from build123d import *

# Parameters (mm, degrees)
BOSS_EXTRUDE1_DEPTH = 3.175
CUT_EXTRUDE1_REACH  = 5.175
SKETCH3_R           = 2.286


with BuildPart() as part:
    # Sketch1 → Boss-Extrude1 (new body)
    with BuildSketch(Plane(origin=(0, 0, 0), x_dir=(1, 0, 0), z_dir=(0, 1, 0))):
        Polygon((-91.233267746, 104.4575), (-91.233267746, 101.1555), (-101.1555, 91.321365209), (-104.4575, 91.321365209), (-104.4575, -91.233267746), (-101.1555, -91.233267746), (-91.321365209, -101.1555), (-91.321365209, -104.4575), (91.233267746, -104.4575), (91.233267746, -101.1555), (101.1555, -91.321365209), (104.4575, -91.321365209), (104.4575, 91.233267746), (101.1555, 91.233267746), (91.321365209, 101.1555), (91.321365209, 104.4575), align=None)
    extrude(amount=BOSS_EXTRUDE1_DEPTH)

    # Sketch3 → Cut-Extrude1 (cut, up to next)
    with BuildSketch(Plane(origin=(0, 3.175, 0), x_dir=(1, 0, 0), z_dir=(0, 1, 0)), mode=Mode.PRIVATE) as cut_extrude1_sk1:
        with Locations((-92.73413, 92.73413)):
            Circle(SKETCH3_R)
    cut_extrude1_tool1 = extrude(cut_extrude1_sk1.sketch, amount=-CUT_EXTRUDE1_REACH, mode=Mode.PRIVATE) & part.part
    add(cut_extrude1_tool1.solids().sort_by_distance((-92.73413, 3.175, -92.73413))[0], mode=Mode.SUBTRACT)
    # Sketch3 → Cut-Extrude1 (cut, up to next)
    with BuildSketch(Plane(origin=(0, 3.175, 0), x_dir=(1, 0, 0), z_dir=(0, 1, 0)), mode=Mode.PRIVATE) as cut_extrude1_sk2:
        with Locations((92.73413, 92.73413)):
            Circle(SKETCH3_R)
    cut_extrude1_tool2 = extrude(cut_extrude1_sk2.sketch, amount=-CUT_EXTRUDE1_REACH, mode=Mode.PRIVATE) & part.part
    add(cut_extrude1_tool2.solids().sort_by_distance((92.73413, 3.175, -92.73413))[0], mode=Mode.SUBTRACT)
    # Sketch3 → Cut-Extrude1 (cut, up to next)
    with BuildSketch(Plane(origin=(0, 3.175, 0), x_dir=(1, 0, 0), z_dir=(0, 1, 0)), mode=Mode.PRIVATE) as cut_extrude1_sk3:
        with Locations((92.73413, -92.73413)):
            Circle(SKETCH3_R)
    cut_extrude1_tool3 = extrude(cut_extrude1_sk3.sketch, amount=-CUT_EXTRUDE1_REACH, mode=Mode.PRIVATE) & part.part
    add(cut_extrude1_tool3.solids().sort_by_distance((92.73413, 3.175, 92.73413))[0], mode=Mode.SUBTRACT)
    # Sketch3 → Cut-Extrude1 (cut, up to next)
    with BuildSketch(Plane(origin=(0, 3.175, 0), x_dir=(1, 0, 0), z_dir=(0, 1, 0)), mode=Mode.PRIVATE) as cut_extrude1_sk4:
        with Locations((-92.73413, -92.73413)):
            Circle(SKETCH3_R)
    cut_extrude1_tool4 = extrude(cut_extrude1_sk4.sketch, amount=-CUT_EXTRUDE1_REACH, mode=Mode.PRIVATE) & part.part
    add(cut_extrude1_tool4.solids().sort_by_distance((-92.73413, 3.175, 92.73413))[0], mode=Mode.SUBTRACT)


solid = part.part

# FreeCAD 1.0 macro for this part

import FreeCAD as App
import Part
import Sketcher
from FreeCAD import Vector
Q = App.Units.Quantity

doc = App.newDocument("Part")
body = doc.addObject("PartDesign::Body", "Body")

sketch1 = body.newObject("Sketcher::SketchObject", "Sketch")
sketch1.AttachmentSupport = (doc.getObject("XZ_Plane"), [""])
sketch1.MapMode = "FlatFace"
sketch1.addGeometry([
    Part.LineSegment(Vector(-91.233268, -104.4575, 0), Vector(-91.233268, -101.1555, 0)),
    Part.LineSegment(Vector(-91.233268, -101.1555, 0), Vector(-101.1555, -91.321365, 0)),
    Part.LineSegment(Vector(-101.1555, -91.321365, 0), Vector(-104.4575, -91.321365, 0)),
    Part.LineSegment(Vector(-104.4575, -91.321365, 0), Vector(-104.4575, 91.233268, 0)),
    Part.LineSegment(Vector(-104.4575, 91.233268, 0), Vector(-101.1555, 91.233268, 0)),
    Part.LineSegment(Vector(-101.1555, 91.233268, 0), Vector(-91.321365, 101.1555, 0)),
    Part.LineSegment(Vector(-91.321365, 101.1555, 0), Vector(-91.321365, 104.4575, 0)),
    Part.LineSegment(Vector(-91.321365, 104.4575, 0), Vector(91.233268, 104.4575, 0)),
    Part.LineSegment(Vector(91.233268, 104.4575, 0), Vector(91.233268, 101.1555, 0)),
    Part.LineSegment(Vector(91.233268, 101.1555, 0), Vector(101.1555, 91.321365, 0)),
    Part.LineSegment(Vector(101.1555, 91.321365, 0), Vector(104.4575, 91.321365, 0)),
    Part.LineSegment(Vector(104.4575, 91.321365, 0), Vector(104.4575, -91.233268, 0)),
    Part.LineSegment(Vector(104.4575, -91.233268, 0), Vector(101.1555, -91.233268, 0)),
    Part.LineSegment(Vector(101.1555, -91.233268, 0), Vector(91.321365, -101.1555, 0)),
    Part.LineSegment(Vector(91.321365, -101.1555, 0), Vector(91.321365, -104.4575, 0)),
    Part.LineSegment(Vector(91.321365, -104.4575, 0), Vector(-91.233268, -104.4575, 0)),
], False)
sketch1.addConstraint([
    Sketcher.Constraint("Coincident", 0, 2, 1, 1),
    Sketcher.Constraint("Coincident", 1, 2, 2, 1),
    Sketcher.Constraint("Coincident", 2, 2, 3, 1),
    Sketcher.Constraint("Coincident", 3, 2, 4, 1),
    Sketcher.Constraint("Coincident", 4, 2, 5, 1),
    Sketcher.Constraint("Coincident", 5, 2, 6, 1),
    Sketcher.Constraint("Coincident", 6, 2, 7, 1),
    Sketcher.Constraint("Coincident", 7, 2, 8, 1),
    Sketcher.Constraint("Coincident", 8, 2, 9, 1),
    Sketcher.Constraint("Coincident", 9, 2, 10, 1),
    Sketcher.Constraint("Coincident", 10, 2, 11, 1),
    Sketcher.Constraint("Coincident", 11, 2, 12, 1),
    Sketcher.Constraint("Coincident", 12, 2, 13, 1),
    Sketcher.Constraint("Coincident", 13, 2, 14, 1),
    Sketcher.Constraint("Coincident", 14, 2, 15, 1),
    Sketcher.Constraint("Coincident", 15, 2, 0, 1),
    Sketcher.Constraint("Vertical", 0),
    Sketcher.Constraint("Horizontal", 2),
    Sketcher.Constraint("Vertical", 3),
    Sketcher.Constraint("Horizontal", 4),
    Sketcher.Constraint("Vertical", 6),
    Sketcher.Constraint("Horizontal", 7),
    Sketcher.Constraint("Vertical", 8),
    Sketcher.Constraint("Horizontal", 10),
    Sketcher.Constraint("Vertical", 11),
    Sketcher.Constraint("Horizontal", 12),
    Sketcher.Constraint("Vertical", 14),
    Sketcher.Constraint("Horizontal", 15),
    Sketcher.Constraint("Symmetric", 0, 2, 8, 2, -1, 1),
    Sketcher.Constraint("Symmetric", 1, 2, 9, 2, -1, 1),
    Sketcher.Constraint("Symmetric", 3, 2, 11, 2, -1, 1),
    Sketcher.Constraint("Symmetric", 5, 2, 13, 2, -1, 1),
    Sketcher.Constraint("Perpendicular", 1, 5),
    Sketcher.Constraint("Perpendicular", 9, 13),
    Sketcher.Constraint("Horizontal", 5, 2, 8, 2),
    Sketcher.Constraint("Vertical", 1, 2, 4, 2),
    Sketcher.Constraint("Equal", 12, 0),
    Sketcher.Constraint("Equal", 15, 3),
    Sketcher.Constraint("Equal", 0, 6),
    Sketcher.Constraint("Equal", 1, 5),
    Sketcher.Constraint("DistanceX", 2, 2, 2, 1, Q("0.13 in")),
    Sketcher.Constraint("Distance", 1, Q("0.55 in")),
    Sketcher.Constraint("DistanceY", 0, 2, 5, 2, Q("7.965 in")),
    Sketcher.Constraint("DistanceX", 0, 2, -1, 1, Q("91.233268 mm")),
])
pad1 = body.newObject("PartDesign::Pad", "Pad")
pad1.Profile = sketch1
pad1.Length = Q("0.125 in")
pad1.Reversed = True

sketch2 = body.newObject("Sketcher::SketchObject", "Sketch001")
sketch2.AttachmentSupport = (doc.getObject("XZ_Plane"), [""])
sketch2.MapMode = "FlatFace"
sketch2.AttachmentOffset = App.Placement(Vector(0, 0, -0.125 * 25.4), App.Rotation())
sketch2.addGeometry(Part.Circle(Vector(-92.73413, -92.73413, 0), Vector(0, 0, 1), 2.286), False)
sketch2.addConstraint([
    Sketcher.Constraint("Diameter", 0, Q("0.18 in")),
    Sketcher.Constraint("DistanceX", 0, 3, -1, 1, Q("92.73413 mm")),
    Sketcher.Constraint("DistanceY", 0, 3, -1, 1, Q("92.73413 mm")),
])
pocket1 = body.newObject("PartDesign::Pocket", "Pocket")
pocket1.Profile = sketch2
pocket1.Type = "UpToFirst"
pocket1.Reversed = True

sketch3 = body.newObject("Sketcher::SketchObject", "Sketch002")
sketch3.AttachmentSupport = (doc.getObject("XZ_Plane"), [""])
sketch3.MapMode = "FlatFace"
sketch3.AttachmentOffset = App.Placement(Vector(0, 0, -0.125 * 25.4), App.Rotation())
sketch3.addGeometry(Part.Circle(Vector(92.73413, -92.73413, 0), Vector(0, 0, 1), 2.286), False)
sketch3.addConstraint([
    Sketcher.Constraint("Diameter", 0, Q("0.18 in")),
    Sketcher.Constraint("DistanceX", -1, 1, 0, 3, Q("92.73413 mm")),
    Sketcher.Constraint("DistanceY", 0, 3, -1, 1, Q("92.73413 mm")),
])
pocket2 = body.newObject("PartDesign::Pocket", "Pocket001")
pocket2.Profile = sketch3
pocket2.Type = "UpToFirst"
pocket2.Reversed = True

sketch4 = body.newObject("Sketcher::SketchObject", "Sketch003")
sketch4.AttachmentSupport = (doc.getObject("XZ_Plane"), [""])
sketch4.MapMode = "FlatFace"
sketch4.AttachmentOffset = App.Placement(Vector(0, 0, -0.125 * 25.4), App.Rotation())
sketch4.addGeometry(Part.Circle(Vector(92.73413, 92.73413, 0), Vector(0, 0, 1), 2.286), False)
sketch4.addConstraint([
    Sketcher.Constraint("Diameter", 0, Q("0.18 in")),
    Sketcher.Constraint("DistanceX", -1, 1, 0, 3, Q("92.73413 mm")),
    Sketcher.Constraint("DistanceY", -1, 1, 0, 3, Q("92.73413 mm")),
])
pocket3 = body.newObject("PartDesign::Pocket", "Pocket002")
pocket3.Profile = sketch4
pocket3.Type = "UpToFirst"
pocket3.Reversed = True

sketch5 = body.newObject("Sketcher::SketchObject", "Sketch004")
sketch5.AttachmentSupport = (doc.getObject("XZ_Plane"), [""])
sketch5.MapMode = "FlatFace"
sketch5.AttachmentOffset = App.Placement(Vector(0, 0, -0.125 * 25.4), App.Rotation())
sketch5.addGeometry(Part.Circle(Vector(-92.73413, 92.73413, 0), Vector(0, 0, 1), 2.286), False)
sketch5.addConstraint([
    Sketcher.Constraint("Diameter", 0, Q("0.18 in")),
    Sketcher.Constraint("DistanceX", 0, 3, -1, 1, Q("92.73413 mm")),
    Sketcher.Constraint("DistanceY", -1, 1, 0, 3, Q("92.73413 mm")),
])
pocket4 = body.newObject("PartDesign::Pocket", "Pocket003")
pocket4.Profile = sketch5
pocket4.Type = "UpToFirst"
pocket4.Reversed = True

doc.recompute()
